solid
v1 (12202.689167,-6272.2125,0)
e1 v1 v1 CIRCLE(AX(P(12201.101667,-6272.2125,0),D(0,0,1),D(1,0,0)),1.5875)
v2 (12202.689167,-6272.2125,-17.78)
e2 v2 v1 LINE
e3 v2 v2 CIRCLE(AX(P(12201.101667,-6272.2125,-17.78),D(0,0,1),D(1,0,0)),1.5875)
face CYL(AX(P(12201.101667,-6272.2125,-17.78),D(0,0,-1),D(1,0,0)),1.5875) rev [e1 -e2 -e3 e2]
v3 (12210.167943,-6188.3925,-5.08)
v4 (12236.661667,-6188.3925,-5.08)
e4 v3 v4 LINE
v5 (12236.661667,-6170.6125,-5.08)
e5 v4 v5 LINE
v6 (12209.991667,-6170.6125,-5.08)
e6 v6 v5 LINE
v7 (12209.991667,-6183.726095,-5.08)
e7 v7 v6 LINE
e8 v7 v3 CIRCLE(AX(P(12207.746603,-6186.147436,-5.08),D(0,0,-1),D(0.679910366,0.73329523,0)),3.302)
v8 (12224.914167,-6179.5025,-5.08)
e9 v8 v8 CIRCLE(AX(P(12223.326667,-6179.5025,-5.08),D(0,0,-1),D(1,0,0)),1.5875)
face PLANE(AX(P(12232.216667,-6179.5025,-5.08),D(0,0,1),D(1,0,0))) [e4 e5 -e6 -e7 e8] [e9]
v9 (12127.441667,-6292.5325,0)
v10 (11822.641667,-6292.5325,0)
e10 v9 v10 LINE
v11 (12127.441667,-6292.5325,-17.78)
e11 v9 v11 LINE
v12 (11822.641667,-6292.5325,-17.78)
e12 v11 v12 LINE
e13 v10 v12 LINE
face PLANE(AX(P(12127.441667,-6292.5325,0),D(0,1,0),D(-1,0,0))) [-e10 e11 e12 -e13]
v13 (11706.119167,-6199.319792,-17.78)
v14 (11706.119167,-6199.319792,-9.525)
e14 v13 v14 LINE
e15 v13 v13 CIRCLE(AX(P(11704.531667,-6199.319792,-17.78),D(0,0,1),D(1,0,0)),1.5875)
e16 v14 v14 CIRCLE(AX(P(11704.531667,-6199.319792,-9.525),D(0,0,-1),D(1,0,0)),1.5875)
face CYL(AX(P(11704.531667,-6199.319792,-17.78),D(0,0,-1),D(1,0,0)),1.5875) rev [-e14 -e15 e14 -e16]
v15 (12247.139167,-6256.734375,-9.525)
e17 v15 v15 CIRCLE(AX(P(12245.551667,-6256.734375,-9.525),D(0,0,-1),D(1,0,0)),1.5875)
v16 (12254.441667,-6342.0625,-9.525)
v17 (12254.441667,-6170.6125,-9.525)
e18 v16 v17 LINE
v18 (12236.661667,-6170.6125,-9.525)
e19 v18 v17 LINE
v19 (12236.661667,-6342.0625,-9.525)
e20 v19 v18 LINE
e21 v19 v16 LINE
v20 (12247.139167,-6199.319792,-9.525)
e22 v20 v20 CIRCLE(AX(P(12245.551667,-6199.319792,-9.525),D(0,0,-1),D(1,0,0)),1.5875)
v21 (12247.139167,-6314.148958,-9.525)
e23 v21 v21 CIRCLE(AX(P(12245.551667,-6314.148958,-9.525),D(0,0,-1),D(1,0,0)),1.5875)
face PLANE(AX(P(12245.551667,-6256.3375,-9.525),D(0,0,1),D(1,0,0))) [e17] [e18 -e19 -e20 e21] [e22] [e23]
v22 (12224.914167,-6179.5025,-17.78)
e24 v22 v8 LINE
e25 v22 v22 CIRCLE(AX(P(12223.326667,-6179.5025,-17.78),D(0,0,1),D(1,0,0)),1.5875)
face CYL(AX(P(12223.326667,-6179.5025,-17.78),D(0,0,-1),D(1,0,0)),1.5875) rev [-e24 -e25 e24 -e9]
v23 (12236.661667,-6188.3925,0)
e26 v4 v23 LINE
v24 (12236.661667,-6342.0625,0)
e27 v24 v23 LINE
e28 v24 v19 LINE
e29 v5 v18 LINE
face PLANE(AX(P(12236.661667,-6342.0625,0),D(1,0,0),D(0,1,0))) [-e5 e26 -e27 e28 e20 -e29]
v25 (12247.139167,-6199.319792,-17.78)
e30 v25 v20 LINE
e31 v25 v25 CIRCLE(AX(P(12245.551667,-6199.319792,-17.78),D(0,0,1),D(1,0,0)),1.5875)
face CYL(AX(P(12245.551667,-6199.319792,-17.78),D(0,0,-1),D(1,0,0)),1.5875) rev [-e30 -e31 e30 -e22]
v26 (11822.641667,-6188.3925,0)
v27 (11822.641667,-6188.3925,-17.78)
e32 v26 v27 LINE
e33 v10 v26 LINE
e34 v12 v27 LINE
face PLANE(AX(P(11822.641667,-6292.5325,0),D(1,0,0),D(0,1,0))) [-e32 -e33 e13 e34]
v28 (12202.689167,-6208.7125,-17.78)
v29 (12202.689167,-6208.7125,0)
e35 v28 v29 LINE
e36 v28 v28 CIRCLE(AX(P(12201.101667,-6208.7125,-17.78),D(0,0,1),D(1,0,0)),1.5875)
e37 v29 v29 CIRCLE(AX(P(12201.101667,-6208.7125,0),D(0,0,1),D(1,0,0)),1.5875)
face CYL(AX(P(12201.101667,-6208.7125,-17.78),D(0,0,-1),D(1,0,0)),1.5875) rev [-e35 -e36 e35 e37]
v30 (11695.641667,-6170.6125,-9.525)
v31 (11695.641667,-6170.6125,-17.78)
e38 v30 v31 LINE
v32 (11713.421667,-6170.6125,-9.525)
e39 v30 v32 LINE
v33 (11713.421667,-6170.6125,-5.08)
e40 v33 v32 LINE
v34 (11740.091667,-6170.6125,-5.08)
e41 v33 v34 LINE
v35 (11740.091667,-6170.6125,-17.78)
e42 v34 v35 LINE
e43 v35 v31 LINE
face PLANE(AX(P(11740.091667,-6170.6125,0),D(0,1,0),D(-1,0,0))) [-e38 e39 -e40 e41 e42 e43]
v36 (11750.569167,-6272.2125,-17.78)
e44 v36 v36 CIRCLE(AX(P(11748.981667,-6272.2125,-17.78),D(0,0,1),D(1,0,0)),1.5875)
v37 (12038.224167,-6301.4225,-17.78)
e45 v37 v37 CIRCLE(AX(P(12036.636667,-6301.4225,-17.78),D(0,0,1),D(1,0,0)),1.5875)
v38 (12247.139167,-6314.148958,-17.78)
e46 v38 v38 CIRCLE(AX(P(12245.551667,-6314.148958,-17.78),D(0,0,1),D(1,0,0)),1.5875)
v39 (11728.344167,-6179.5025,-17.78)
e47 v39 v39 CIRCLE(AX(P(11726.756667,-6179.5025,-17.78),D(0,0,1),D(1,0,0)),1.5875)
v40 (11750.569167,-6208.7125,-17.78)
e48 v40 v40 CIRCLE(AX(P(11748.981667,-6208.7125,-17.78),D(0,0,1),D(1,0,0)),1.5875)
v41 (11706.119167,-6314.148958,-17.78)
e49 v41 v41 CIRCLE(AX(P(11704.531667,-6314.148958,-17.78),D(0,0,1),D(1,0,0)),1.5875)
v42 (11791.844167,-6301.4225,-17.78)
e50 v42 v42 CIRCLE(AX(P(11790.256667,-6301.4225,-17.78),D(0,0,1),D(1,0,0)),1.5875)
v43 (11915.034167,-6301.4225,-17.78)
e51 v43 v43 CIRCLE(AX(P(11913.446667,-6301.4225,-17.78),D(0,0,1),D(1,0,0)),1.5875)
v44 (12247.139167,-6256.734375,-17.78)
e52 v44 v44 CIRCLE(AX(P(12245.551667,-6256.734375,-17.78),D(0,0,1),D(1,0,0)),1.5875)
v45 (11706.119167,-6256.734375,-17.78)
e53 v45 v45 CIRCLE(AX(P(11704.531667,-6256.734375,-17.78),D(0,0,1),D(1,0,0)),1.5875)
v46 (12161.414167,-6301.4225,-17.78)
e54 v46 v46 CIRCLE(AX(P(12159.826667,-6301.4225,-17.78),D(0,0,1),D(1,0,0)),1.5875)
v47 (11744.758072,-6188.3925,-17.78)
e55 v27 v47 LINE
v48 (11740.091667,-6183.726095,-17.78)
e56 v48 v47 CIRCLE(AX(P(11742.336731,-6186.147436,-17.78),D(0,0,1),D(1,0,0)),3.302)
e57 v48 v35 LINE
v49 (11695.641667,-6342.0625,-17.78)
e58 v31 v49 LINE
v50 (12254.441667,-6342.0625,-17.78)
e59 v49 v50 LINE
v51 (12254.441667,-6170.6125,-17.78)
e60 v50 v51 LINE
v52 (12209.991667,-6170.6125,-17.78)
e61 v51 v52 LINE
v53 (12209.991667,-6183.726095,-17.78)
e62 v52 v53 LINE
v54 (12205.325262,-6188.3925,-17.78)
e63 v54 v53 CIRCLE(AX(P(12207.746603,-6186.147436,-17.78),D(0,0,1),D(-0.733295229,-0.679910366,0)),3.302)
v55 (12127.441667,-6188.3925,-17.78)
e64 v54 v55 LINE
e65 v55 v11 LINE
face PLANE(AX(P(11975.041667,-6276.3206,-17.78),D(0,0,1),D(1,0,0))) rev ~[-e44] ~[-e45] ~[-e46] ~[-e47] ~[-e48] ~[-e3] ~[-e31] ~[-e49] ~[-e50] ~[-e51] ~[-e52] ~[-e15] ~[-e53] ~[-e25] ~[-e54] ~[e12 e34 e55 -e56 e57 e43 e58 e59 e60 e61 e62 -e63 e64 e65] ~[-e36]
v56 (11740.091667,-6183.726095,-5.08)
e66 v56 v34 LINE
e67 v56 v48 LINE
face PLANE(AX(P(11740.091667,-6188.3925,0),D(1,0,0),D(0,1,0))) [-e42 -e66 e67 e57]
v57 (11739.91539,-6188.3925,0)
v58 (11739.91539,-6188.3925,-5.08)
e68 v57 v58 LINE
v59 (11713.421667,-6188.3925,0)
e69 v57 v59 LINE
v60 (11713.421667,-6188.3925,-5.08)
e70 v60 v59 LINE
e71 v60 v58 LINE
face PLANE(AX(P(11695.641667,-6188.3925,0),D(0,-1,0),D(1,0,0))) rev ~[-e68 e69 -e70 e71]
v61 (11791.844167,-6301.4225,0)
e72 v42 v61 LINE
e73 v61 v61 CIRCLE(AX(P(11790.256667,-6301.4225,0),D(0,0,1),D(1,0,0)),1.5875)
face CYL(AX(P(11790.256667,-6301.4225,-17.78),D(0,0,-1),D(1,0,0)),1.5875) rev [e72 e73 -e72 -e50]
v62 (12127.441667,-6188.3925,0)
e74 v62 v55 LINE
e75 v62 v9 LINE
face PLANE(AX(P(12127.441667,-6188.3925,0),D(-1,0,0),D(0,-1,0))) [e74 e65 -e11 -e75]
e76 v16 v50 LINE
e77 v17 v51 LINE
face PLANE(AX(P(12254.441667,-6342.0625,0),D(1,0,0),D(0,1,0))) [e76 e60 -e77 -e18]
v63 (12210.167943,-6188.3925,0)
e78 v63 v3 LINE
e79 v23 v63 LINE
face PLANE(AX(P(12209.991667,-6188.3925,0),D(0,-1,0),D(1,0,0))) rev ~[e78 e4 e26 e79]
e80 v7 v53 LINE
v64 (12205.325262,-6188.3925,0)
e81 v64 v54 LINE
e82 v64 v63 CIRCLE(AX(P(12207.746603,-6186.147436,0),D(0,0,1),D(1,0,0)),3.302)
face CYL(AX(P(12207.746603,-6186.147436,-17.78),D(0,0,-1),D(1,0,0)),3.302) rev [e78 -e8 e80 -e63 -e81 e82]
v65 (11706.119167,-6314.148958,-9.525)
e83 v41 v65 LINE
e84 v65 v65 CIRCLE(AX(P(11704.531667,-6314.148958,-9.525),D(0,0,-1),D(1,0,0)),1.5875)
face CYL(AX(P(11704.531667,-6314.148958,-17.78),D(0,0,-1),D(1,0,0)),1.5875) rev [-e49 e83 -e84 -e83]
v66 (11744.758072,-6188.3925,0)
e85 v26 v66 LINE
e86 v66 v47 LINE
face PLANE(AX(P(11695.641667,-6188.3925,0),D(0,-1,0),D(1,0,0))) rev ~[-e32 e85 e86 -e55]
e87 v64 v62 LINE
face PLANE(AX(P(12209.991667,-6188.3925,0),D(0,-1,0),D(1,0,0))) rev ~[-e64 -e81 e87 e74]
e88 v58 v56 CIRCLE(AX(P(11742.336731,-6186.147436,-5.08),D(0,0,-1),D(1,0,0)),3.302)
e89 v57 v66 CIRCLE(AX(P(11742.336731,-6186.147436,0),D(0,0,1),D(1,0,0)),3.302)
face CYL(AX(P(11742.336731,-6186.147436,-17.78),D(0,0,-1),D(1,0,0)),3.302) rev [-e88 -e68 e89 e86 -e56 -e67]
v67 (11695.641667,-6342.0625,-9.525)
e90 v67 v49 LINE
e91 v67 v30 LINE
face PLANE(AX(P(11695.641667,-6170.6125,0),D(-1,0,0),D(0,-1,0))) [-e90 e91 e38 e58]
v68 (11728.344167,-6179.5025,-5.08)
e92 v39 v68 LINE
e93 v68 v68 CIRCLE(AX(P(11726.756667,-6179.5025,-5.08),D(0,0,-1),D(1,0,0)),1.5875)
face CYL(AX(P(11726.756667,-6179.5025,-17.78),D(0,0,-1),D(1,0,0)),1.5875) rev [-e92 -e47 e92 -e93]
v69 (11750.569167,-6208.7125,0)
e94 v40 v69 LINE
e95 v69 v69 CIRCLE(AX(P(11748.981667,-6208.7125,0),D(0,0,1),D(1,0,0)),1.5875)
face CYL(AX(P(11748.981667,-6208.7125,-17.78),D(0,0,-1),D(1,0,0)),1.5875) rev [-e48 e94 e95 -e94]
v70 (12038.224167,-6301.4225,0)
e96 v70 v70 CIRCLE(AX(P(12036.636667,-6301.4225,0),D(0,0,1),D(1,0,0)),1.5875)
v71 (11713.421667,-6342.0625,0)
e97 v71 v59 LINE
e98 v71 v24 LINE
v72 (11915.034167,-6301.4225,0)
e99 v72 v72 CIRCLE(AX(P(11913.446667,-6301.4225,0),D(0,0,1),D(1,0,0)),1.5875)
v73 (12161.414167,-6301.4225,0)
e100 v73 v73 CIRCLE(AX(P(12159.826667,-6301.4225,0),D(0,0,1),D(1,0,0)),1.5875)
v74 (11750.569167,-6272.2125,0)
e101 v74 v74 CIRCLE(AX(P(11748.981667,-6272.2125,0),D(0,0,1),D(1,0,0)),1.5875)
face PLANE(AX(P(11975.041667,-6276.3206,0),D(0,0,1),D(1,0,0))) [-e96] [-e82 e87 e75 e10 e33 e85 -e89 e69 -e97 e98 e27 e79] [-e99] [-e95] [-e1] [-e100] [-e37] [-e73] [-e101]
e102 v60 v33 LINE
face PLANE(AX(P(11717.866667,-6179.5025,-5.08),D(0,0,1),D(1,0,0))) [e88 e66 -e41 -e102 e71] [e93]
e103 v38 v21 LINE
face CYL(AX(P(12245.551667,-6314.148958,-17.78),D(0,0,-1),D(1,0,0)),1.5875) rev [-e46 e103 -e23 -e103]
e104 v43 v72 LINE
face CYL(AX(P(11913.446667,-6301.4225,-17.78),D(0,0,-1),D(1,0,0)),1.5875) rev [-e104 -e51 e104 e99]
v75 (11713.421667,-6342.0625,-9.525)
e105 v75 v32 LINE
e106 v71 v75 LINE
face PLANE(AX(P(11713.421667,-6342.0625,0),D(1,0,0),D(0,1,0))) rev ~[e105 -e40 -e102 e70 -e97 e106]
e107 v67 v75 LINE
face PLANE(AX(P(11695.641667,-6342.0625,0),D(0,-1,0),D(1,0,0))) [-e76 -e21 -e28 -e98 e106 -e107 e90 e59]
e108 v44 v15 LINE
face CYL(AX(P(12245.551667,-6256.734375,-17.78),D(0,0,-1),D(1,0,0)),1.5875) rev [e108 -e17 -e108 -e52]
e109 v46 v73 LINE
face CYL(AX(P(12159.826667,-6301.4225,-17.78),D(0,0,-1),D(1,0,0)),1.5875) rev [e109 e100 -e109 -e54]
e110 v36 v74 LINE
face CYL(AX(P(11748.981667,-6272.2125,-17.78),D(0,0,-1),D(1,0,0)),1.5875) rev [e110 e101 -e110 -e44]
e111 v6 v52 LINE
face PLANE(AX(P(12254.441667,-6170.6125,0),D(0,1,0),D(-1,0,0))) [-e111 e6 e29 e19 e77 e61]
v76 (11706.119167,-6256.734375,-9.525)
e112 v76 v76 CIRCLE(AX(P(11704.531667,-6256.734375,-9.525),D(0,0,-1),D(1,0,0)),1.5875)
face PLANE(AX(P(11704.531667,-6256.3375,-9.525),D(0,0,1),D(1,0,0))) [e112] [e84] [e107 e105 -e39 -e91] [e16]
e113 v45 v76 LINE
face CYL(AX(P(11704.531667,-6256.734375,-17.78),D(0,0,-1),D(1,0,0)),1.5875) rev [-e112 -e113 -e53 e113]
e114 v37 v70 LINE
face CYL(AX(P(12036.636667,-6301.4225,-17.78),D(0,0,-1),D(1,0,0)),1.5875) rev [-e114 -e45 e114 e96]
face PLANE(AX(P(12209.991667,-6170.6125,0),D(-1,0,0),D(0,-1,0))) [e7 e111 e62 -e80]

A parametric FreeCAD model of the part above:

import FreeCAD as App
import Part
import Sketcher

V = App.Vector
Q = App.Units.Quantity

doc = App.newDocument("Part")
body = doc.addObject("PartDesign::Body", "Body")

sketch1 = body.newObject("Sketcher::SketchObject", "Sketch")
sketch1.AttachmentSupport = (doc.getObject("XY_Plane"), [""])
sketch1.MapMode = "FlatFace"
sketch1.addGeometry([
    Part.LineSegment(V(12254, -6342, 0), V(12254, -6171, 0)),
    Part.LineSegment(V(12254, -6171, 0), V(12210, -6171, 0)),
    Part.LineSegment(V(12210, -6171, 0), V(12210, -6188, 0)),
    Part.LineSegment(V(12210, -6188, 0), V(12127, -6188, 0)),
    Part.LineSegment(V(12127, -6188, 0), V(12127, -6293, 0)),
    Part.LineSegment(V(12127, -6293, 0), V(11823, -6293, 0)),
    Part.LineSegment(V(11823, -6293, 0), V(11823, -6188, 0)),
    Part.LineSegment(V(11823, -6188, 0), V(11740, -6188, 0)),
    Part.LineSegment(V(11740, -6188, 0), V(11740, -6171, 0)),
    Part.LineSegment(V(11740, -6171, 0), V(11696, -6171, 0)),
    Part.LineSegment(V(11696, -6171, 0), V(11696, -6342, 0)),
    Part.LineSegment(V(11696, -6342, 0), V(12254, -6342, 0)),
], False)
sketch1.addConstraint([
    Sketcher.Constraint("Coincident", 0, 2, 1, 1),
    Sketcher.Constraint("Coincident", 1, 2, 2, 1),
    Sketcher.Constraint("Coincident", 2, 2, 3, 1),
    Sketcher.Constraint("Coincident", 3, 2, 4, 1),
    Sketcher.Constraint("Coincident", 4, 2, 5, 1),
    Sketcher.Constraint("Coincident", 5, 2, 6, 1),
    Sketcher.Constraint("Coincident", 6, 2, 7, 1),
    Sketcher.Constraint("Coincident", 7, 2, 8, 1),
    Sketcher.Constraint("Coincident", 8, 2, 9, 1),
    Sketcher.Constraint("Coincident", 9, 2, 10, 1),
    Sketcher.Constraint("Coincident", 10, 2, 11, 1),
    Sketcher.Constraint("Coincident", 11, 2, 0, 1),
    Sketcher.Constraint("Vertical", 0),
    Sketcher.Constraint("Horizontal", 1),
    Sketcher.Constraint("Vertical", 2),
    Sketcher.Constraint("Horizontal", 3),
    Sketcher.Constraint("Vertical", 4),
    Sketcher.Constraint("Horizontal", 5),
    Sketcher.Constraint("Vertical", 6),
    Sketcher.Constraint("Horizontal", 7),
    Sketcher.Constraint("Vertical", 8),
    Sketcher.Constraint("Horizontal", 9),
    Sketcher.Constraint("Vertical", 10),
    Sketcher.Constraint("Horizontal", 11),
    Sketcher.Constraint("Horizontal", 3, 2, 6, 2),
    Sketcher.Constraint("Horizontal", 1, 2, 8, 2),
    Sketcher.Constraint("Equal", 3, 7),
    Sketcher.Constraint("Equal", 1, 9),
    Sketcher.Constraint("DistanceX", 5, 2, 5, 1, Q("12 in")),
    Sketcher.Constraint("DistanceX", 11, 1, 11, 2, Q("22 in")),
    Sketcher.Constraint("DistanceY", 2, 2, 2, 1, Q("0.7 in")),
    Sketcher.Constraint("DistanceY", 4, 2, 4, 1, Q("4.1 in")),
    Sketcher.Constraint("DistanceX", 1, 2, 1, 1, Q("1.75 in")),
    Sketcher.Constraint("DistanceY", 0, 1, 0, 2, Q("6.75 in")),
    Sketcher.Constraint("DistanceY", 0, 2, -1, 1, Q("242.9375 in")),
    Sketcher.Constraint("DistanceX", -1, 1, 0, 2, Q("12254.441667 mm")),
])
pad1 = body.newObject("PartDesign::Pad", "Pad")
pad1.Profile = sketch1
pad1.Length = Q("0.7 in")
pad1.Reversed = True

sketch2 = body.newObject("Sketcher::SketchObject", "Sketch001")
sketch2.AttachmentSupport = (doc.getObject("XY_Plane"), [""])
sketch2.MapMode = "FlatFace"
sketch2.addGeometry([
    Part.LineSegment(V(11696, -6171, 0), V(11696, -6188, 0)),
    Part.LineSegment(V(11696, -6188, 0), V(11740, -6188, 0)),
    Part.LineSegment(V(11740, -6188, 0), V(11740, -6171, 0)),
    Part.LineSegment(V(11740, -6171, 0), V(11696, -6171, 0)),
    Part.LineSegment(V(12210, -6171, 0), V(12210, -6188, 0)),
    Part.LineSegment(V(12210, -6188, 0), V(12254, -6188, 0)),
    Part.LineSegment(V(12254, -6188, 0), V(12254, -6171, 0)),
    Part.LineSegment(V(12254, -6171, 0), V(12210, -6171, 0)),
], False)
sketch2.addConstraint([
    Sketcher.Constraint("Coincident", 0, 2, 1, 1),
    Sketcher.Constraint("Coincident", 1, 2, 2, 1),
    Sketcher.Constraint("Coincident", 2, 2, 3, 1),
    Sketcher.Constraint("Coincident", 3, 2, 0, 1),
    Sketcher.Constraint("Coincident", 4, 2, 5, 1),
    Sketcher.Constraint("Coincident", 5, 2, 6, 1),
    Sketcher.Constraint("Coincident", 6, 2, 7, 1),
    Sketcher.Constraint("Coincident", 7, 2, 4, 1),
    Sketcher.Constraint("Vertical", 0),
    Sketcher.Constraint("Horizontal", 1),
    Sketcher.Constraint("Vertical", 2),
    Sketcher.Constraint("Horizontal", 3),
    Sketcher.Constraint("Vertical", 4),
    Sketcher.Constraint("Horizontal", 5),
    Sketcher.Constraint("Vertical", 6),
    Sketcher.Constraint("Horizontal", 7),
    Sketcher.Constraint("Horizontal", 1, 2, 4, 2),
    Sketcher.Constraint("Horizontal", 3, 2, 6, 2),
    Sketcher.Constraint("Equal", 3, 5),
    Sketcher.Constraint("DistanceY", 0, 2, 0, 1, Q("0.7 in")),
    Sketcher.Constraint("DistanceX", 0, 2, 5, 2, Q("22 in")),
    Sketcher.Constraint("DistanceX", 1, 1, 1, 2, Q("1.75 in")),
    Sketcher.Constraint("DistanceY", 2, 2, -1, 1, Q("242.9375 in")),
    Sketcher.Constraint("DistanceX", -1, 1, 0, 2, Q("11695.641667 mm")),
])
pocket1 = body.newObject("PartDesign::Pocket", "Pocket")
pocket1.Profile = sketch2
pocket1.Length = Q("0.2 in")

sketch3 = body.newObject("Sketcher::SketchObject", "Sketch002")
sketch3.AttachmentSupport = (doc.getObject("XY_Plane"), [""])
sketch3.MapMode = "FlatFace"
sketch3.addGeometry([
    Part.LineSegment(V(11696, -6171, 0), V(11696, -6342, 0)),
    Part.LineSegment(V(11696, -6342, 0), V(11713, -6342, 0)),
    Part.LineSegment(V(11713, -6342, 0), V(11713, -6171, 0)),
    Part.LineSegment(V(11713, -6171, 0), V(11696, -6171, 0)),
    Part.LineSegment(V(12237, -6171, 0), V(12237, -6342, 0)),
    Part.LineSegment(V(12237, -6342, 0), V(12254, -6342, 0)),
    Part.LineSegment(V(12254, -6342, 0), V(12254, -6171, 0)),
    Part.LineSegment(V(12254, -6171, 0), V(12237, -6171, 0)),
], False)
sketch3.addConstraint([
    Sketcher.Constraint("Coincident", 0, 2, 1, 1),
    Sketcher.Constraint("Coincident", 1, 2, 2, 1),
    Sketcher.Constraint("Coincident", 2, 2, 3, 1),
    Sketcher.Constraint("Coincident", 3, 2, 0, 1),
    Sketcher.Constraint("Coincident", 4, 2, 5, 1),
    Sketcher.Constraint("Coincident", 5, 2, 6, 1),
    Sketcher.Constraint("Coincident", 6, 2, 7, 1),
    Sketcher.Constraint("Coincident", 7, 2, 4, 1),
    Sketcher.Constraint("Vertical", 0),
    Sketcher.Constraint("Horizontal", 1),
    Sketcher.Constraint("Vertical", 2),
    Sketcher.Constraint("Horizontal", 3),
    Sketcher.Constraint("Vertical", 4),
    Sketcher.Constraint("Horizontal", 5),
    Sketcher.Constraint("Vertical", 6),
    Sketcher.Constraint("Horizontal", 7),
    Sketcher.Constraint("Horizontal", 1, 2, 4, 2),
    Sketcher.Constraint("Horizontal", 3, 2, 6, 2),
    Sketcher.Constraint("Equal", 3, 5),
    Sketcher.Constraint("DistanceX", 1, 1, 1, 2, Q("0.7 in")),
    Sketcher.Constraint("DistanceX", 0, 2, 5, 2, Q("22 in")),
    Sketcher.Constraint("DistanceY", 0, 2, 0, 1, Q("6.75 in")),
    Sketcher.Constraint("DistanceY", 0, 2, -1, 1, Q("249.6875 in")),
    Sketcher.Constraint("DistanceX", -1, 1, 0, 2, Q("11695.641667 mm")),
])
pocket2 = body.newObject("PartDesign::Pocket", "Pocket001")
pocket2.Profile = sketch3
pocket2.Length = Q("0.375 in")

sketch4 = body.newObject("Sketcher::SketchObject", "Sketch003")
sketch4.AttachmentSupport = (doc.getObject("XY_Plane"), [""])
sketch4.MapMode = "FlatFace"
sketch4.AttachmentOffset = App.Placement(V(0, 0, -0.7 * 25.4), App.Rotation())
sketch4.addGeometry([
    Part.Circle(V(11704.5, -6314.1, 0), V(0, 0, 1), 1.6),
    Part.Circle(V(11704.5, -6256.7, 0), V(0, 0, 1), 1.6),
    Part.Circle(V(11704.5, -6199.3, 0), V(0, 0, 1), 1.6),
    Part.Circle(V(11726.8, -6179.5, 0), V(0, 0, 1), 1.6),
    Part.Circle(V(11749, -6208.7, 0), V(0, 0, 1), 1.6),
    Part.Circle(V(11749, -6272.2, 0), V(0, 0, 1), 1.6),
    Part.Circle(V(11790.3, -6301.4, 0), V(0, 0, 1), 1.6),
    Part.Circle(V(11913.4, -6301.4, 0), V(0, 0, 1), 1.6),
    Part.Circle(V(12036.6, -6301.4, 0), V(0, 0, 1), 1.6),
    Part.Circle(V(12159.8, -6301.4, 0), V(0, 0, 1), 1.6),
    Part.Circle(V(12245.6, -6314.1, 0), V(0, 0, 1), 1.6),
    Part.Circle(V(12245.6, -6256.7, 0), V(0, 0, 1), 1.6),
    Part.Circle(V(12201.1, -6272.2, 0), V(0, 0, 1), 1.6),
    Part.Circle(V(12201.1, -6208.7, 0), V(0, 0, 1), 1.6),
    Part.Circle(V(12245.6, -6199.3, 0), V(0, 0, 1), 1.6),
    Part.Circle(V(12223.3, -6179.5, 0), V(0, 0, 1), 1.6),
    Part.Circle(V(11742.3, -6186.1, 0), V(0, 0, 1), 3.3),
    Part.Circle(V(12207.7, -6186.1, 0), V(0, 0, 1), 3.3),
], False)
sketch4.addConstraint([
    Sketcher.Constraint("Equal", 0, 1),
    Sketcher.Constraint("Equal", 1, 2),
    Sketcher.Constraint("Equal", 2, 3),
    Sketcher.Constraint("Equal", 3, 4),
    Sketcher.Constraint("Equal", 4, 5),
    Sketcher.Constraint("Equal", 5, 6),
    Sketcher.Constraint("Equal", 6, 7),
    Sketcher.Constraint("Equal", 7, 8),
    Sketcher.Constraint("Equal", 8, 9),
    Sketcher.Constraint("Equal", 9, 10),
    Sketcher.Constraint("Equal", 10, 11),
    Sketcher.Constraint("Equal", 11, 12),
    Sketcher.Constraint("Equal", 12, 13),
    Sketcher.Constraint("Equal", 13, 14),
    Sketcher.Constraint("Equal", 14, 15),
    Sketcher.Constraint("Equal", 16, 17),
    Sketcher.Constraint("Horizontal", 6, 3, 7, 3),
    Sketcher.Constraint("Horizontal", 7, 3, 8, 3),
    Sketcher.Constraint("Horizontal", 8, 3, 9, 3),
    Sketcher.Constraint("Horizontal", 0, 3, 10, 3),
    Sketcher.Constraint("Horizontal", 1, 3, 11, 3),
    Sketcher.Constraint("Horizontal", 5, 3, 12, 3),
    Sketcher.Constraint("Horizontal", 4, 3, 13, 3),
    Sketcher.Constraint("Horizontal", 2, 3, 14, 3),
    Sketcher.Constraint("Horizontal", 3, 3, 15, 3),
    Sketcher.Constraint("Horizontal", 16, 3, 17, 3),
    Sketcher.Constraint("Vertical", 0, 3, 1, 3),
    Sketcher.Constraint("Vertical", 1, 3, 2, 3),
    Sketcher.Constraint("Vertical", 4, 3, 5, 3),
    Sketcher.Constraint("Vertical", 10, 3, 11, 3),
    Sketcher.Constraint("Vertical", 12, 3, 13, 3),
    Sketcher.Constraint("Vertical", 11, 3, 14, 3),
    Sketcher.Constraint("Diameter", 16, Q("0.26 in")),
    Sketcher.Constraint("Diameter", 0, Q("0.125 in")),
    Sketcher.Constraint("DistanceY", 5, 3, 4, 3, Q("2.5 in")),
    Sketcher.Constraint("DistanceX", 6, 3, 8, 3, Q("9.7 in")),
    Sketcher.Constraint("DistanceX", 7, 3, 9, 3, Q("9.7 in")),
    Sketcher.Constraint("DistanceY", 4, 3, 3, 3, Q("1.15 in")),
    Sketcher.Constraint("DistanceX", 2, 3, 4, 3, Q("1.75 in")),
    Sketcher.Constraint("DistanceY", 6, 3, 5, 3, Q("1.15 in")),
    Sketcher.Constraint("DistanceX", 6, 3, 7, 3, Q("4.85 in")),
    Sketcher.Constraint("DistanceX", 5, 3, 10, 3, Q("19.55 in")),
    Sketcher.Constraint("DistanceX", 12, 3, 11, 3, Q("1.75 in")),
    Sketcher.Constraint("DistanceY", 1, 3, -1, 1, Q("246.328125 in")),
    Sketcher.Constraint("DistanceY", 4, 3, -1, 1, Q("244.4375 in")),
    Sketcher.Constraint("DistanceX", 2, 3, 3, 3, Q("0.875 in")),
    Sketcher.Constraint("DistanceX", 5, 3, 6, 3, Q("1.625 in")),
    Sketcher.Constraint("DistanceX", 15, 3, 14, 3, Q("0.875 in")),
    Sketcher.Constraint("DistanceY", 0, 3, -1, 1, Q("6314.148958 mm")),
    Sketcher.Constraint("DistanceY", 2, 3, -1, 1, Q("6199.319792 mm")),
    Sketcher.Constraint("DistanceX", -1, 1, 16, 3, Q("11742.336731 mm")),
    Sketcher.Constraint("DistanceY", 1, 3, 16, 3, Q("70.586939 mm")),
    Sketcher.Constraint("DistanceX", -1, 1, 0, 3, Q("11704.531667 mm")),
    Sketcher.Constraint("DistanceX", -1, 1, 17, 3, Q("12207.746603 mm")),
])
pocket3 = body.newObject("PartDesign::Pocket", "Pocket002")
pocket3.Profile = sketch4
pocket3.Length = Q("0.7 in")
pocket3.Reversed = True

doc.recompute()
